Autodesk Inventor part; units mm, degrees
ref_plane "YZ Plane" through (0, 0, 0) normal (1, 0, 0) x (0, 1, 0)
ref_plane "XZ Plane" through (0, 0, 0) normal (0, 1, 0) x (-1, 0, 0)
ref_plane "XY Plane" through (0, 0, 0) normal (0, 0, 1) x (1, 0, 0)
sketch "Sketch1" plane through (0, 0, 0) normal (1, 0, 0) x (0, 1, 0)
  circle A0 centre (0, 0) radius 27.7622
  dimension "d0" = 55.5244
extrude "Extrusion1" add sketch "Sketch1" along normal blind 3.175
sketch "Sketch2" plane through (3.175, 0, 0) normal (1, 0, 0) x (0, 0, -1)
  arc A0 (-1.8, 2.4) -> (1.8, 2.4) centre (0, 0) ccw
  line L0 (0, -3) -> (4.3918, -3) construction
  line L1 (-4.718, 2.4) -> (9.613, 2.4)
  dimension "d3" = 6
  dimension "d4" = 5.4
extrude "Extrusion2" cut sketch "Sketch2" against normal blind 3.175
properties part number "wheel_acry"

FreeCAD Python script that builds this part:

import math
import FreeCAD as App
import Part
import Sketcher

doc = App.newDocument("Part")
body = doc.addObject("PartDesign::Body", "Body")

sketch1 = doc.addObject("Sketcher::SketchObject", "Sketch")
body.addObject(sketch1)
sketch1.AttachmentSupport = (doc.YZ_Plane, [""])
sketch1.MapMode = "FlatFace"
sketch1.addGeometry(Part.Circle(App.Vector(0, 0, 0), App.Vector(0, 0, 1), 28), False)
sketch1.addConstraint([
    Sketcher.Constraint("Coincident", 0, 3, -1, 1),
    Sketcher.Constraint("Diameter", 0, 55.5244),
])
pad1 = doc.addObject("PartDesign::Pad", "Pad")
body.addObject(pad1)
pad1.Profile = sketch1
pad1.Length = 3.175

sketch2 = doc.addObject("Sketcher::SketchObject", "Sketch001")
body.addObject(sketch2)
sketch2.AttachmentSupport = (doc.YZ_Plane, [""])
sketch2.MapMode = "FlatFace"
sketch2.AttachmentOffset = App.Placement(App.Vector(0, 0, 3.175), App.Rotation())
sketch2.addGeometry([
    Part.LineSegment(App.Vector(2.4, -1.8, 0), App.Vector(2.4, 1.8, 0)),
    Part.ArcOfCircle(Part.Circle(App.Vector(0, 0, 0), App.Vector(0, 0, 1), 3), math.radians(37), math.radians(323)),
], False)
sketch2.addConstraint([
    Sketcher.Constraint("Coincident", 0, 1, 1, 2),
    Sketcher.Constraint("Coincident", 1, 1, 0, 2),
    Sketcher.Constraint("Vertical", 0),
    Sketcher.Constraint("Coincident", 1, 3, -1, 1),
    Sketcher.Constraint("Radius", 1, 3.0),
    Sketcher.Constraint("DistanceY", 0, 1, 0, 2, 3.6),
])
pocket1 = doc.addObject("PartDesign::Pocket", "Pocket")
body.addObject(pocket1)
pocket1.Profile = sketch2
pocket1.Length = 3.175

doc.recompute()
